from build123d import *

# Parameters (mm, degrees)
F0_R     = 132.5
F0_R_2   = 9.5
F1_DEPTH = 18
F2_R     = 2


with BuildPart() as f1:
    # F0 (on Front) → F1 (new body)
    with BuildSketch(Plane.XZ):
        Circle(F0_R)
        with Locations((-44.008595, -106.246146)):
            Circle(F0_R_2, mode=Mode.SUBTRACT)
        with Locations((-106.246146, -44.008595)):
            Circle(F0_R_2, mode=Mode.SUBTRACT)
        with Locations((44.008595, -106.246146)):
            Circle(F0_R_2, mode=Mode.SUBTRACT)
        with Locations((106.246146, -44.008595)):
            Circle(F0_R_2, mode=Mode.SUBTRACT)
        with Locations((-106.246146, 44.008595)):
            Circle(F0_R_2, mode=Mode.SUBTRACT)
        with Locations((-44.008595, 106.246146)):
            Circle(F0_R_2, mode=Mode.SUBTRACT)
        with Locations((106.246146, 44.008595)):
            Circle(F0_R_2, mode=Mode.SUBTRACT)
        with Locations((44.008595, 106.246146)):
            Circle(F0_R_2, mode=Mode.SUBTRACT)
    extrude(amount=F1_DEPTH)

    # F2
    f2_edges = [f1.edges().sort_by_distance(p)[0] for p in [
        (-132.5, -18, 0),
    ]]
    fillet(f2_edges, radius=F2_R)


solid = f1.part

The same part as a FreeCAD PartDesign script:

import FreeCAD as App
import Part
import Sketcher
Q = App.Units.Quantity


def edges_at(feature, points):
    """Names of the edges that pass closest to the given points."""
    edges = feature.Shape.Edges
    near = lambda p: min(range(len(edges)), key=lambda i: edges[i].distToShape(Part.Vertex(*p))[0])
    return sorted({f"Edge{near(p) + 1}" for p in points})

doc = App.newDocument("Part")
body = doc.addObject("PartDesign::Body", "Body")

# Sketch on XZ plane
sketch1 = body.newObject("Sketcher::SketchObject", "Sketch")
sketch1.AttachmentSupport = (doc.getObject("XZ_Plane"), [""])
sketch1.MapMode = "FlatFace"
sketch1.addGeometry(Part.Circle(App.Vector(0, 0, 0), App.Vector(0, 0, 1), 132), False)
sketch1.addGeometry(Part.Circle(App.Vector(-44, -106, 0), App.Vector(0, 0, 1), 10), False)
sketch1.addGeometry(Part.Circle(App.Vector(-106, -44, 0), App.Vector(0, 0, 1), 10), False)
sketch1.addGeometry(Part.Circle(App.Vector(44, -106, 0), App.Vector(0, 0, 1), 10), False)
sketch1.addGeometry(Part.Circle(App.Vector(106, -44, 0), App.Vector(0, 0, 1), 10), False)
sketch1.addGeometry(Part.Circle(App.Vector(-106, 44, 0), App.Vector(0, 0, 1), 10), False)
sketch1.addGeometry(Part.Circle(App.Vector(-44, 106, 0), App.Vector(0, 0, 1), 10), False)
sketch1.addGeometry(Part.Circle(App.Vector(106, 44, 0), App.Vector(0, 0, 1), 10), False)
sketch1.addGeometry(Part.Circle(App.Vector(44, 106, 0), App.Vector(0, 0, 1), 10), False)
sketch1.addConstraint(Sketcher.Constraint("Coincident", 0, 3, -1, 1))
sketch1.addConstraint(Sketcher.Constraint("Equal", 1, 2))
sketch1.addConstraint(Sketcher.Constraint("Equal", 2, 3))
sketch1.addConstraint(Sketcher.Constraint("Equal", 3, 4))
sketch1.addConstraint(Sketcher.Constraint("Equal", 4, 5))
sketch1.addConstraint(Sketcher.Constraint("Equal", 5, 6))
sketch1.addConstraint(Sketcher.Constraint("Equal", 6, 7))
sketch1.addConstraint(Sketcher.Constraint("Equal", 7, 8))
sketch1.addConstraint(Sketcher.Constraint("Symmetric", 4, 3, 5, 3, -1, 1))
sketch1.addConstraint(Sketcher.Constraint("Symmetric", 3, 3, 6, 3, -1, 1))
sketch1.addConstraint(Sketcher.Constraint("Symmetric", 2, 3, 7, 3, -1, 1))
sketch1.addConstraint(Sketcher.Constraint("Symmetric", 1, 3, 8, 3, -1, 1))
sketch1.addConstraint(Sketcher.Constraint("Symmetric", 1, 3, 3, 3, -2))
sketch1.addConstraint(Sketcher.Constraint("Symmetric", 2, 3, 4, 3, -2))
sketch1.addConstraint(Sketcher.Constraint("Diameter", 0, Q("265 mm")))
sketch1.addConstraint(Sketcher.Constraint("Diameter", 1, Q("19 mm")))
sketch1.addConstraint(Sketcher.Constraint("DistanceX", 2, 3, 1, 3, Q("62.237551 mm")))
sketch1.addConstraint(Sketcher.Constraint("DistanceY", 1, 3, 2, 3, Q("62.237551 mm")))
sketch1.addConstraint(Sketcher.Constraint("DistanceX", 1, 3, 3, 3, Q("88.01719 mm")))
sketch1.addConstraint(Sketcher.Constraint("DistanceY", 2, 3, 5, 3, Q("88.01719 mm")))
pad1 = body.newObject("PartDesign::Pad", "Pad")
pad1.Profile = sketch1
pad1.Length = 18
doc.recompute()

fillet = body.newObject("PartDesign::Fillet", "Fillet")
fillet.Base = (pad1, edges_at(pad1, [(-132.5, -18, 0)]))
fillet.Radius = 2

doc.recompute()
